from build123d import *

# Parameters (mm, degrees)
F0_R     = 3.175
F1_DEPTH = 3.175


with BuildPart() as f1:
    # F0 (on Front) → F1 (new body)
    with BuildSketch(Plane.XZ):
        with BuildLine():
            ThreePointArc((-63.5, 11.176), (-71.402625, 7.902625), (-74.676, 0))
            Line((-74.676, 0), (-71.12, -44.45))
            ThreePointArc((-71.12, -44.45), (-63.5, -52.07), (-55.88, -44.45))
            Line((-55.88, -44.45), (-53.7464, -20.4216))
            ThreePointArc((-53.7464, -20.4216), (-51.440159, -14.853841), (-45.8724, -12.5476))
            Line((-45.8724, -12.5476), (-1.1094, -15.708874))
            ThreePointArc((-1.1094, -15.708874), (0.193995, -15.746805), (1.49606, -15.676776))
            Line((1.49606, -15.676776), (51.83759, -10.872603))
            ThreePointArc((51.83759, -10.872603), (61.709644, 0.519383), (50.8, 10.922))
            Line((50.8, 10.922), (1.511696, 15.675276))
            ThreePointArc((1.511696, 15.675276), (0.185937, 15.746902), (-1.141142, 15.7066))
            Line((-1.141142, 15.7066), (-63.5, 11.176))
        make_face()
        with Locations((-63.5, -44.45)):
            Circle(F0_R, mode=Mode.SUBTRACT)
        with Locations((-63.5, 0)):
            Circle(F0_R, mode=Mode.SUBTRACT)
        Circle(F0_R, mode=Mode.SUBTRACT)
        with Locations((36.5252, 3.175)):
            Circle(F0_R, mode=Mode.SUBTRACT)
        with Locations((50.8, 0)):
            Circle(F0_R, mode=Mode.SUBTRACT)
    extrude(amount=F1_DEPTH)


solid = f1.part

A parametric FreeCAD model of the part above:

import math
import FreeCAD as App
import Part
import Sketcher

V = App.Vector
Q = App.Units.Quantity

doc = App.newDocument("Part")
params = doc.addObject("Spreadsheet::Sheet", "Params")
for row, (alias, value) in enumerate([
    ("sketch1_radius", "0.3 in"),
    ("sketch1_diameter", "0.25 in"),
    ("sketch1_radius2", "0.4400001 in"),
    ("sketch1_radius3", "0.31 in"),
    ("sketch1_radius4", "0.43 in"),
    ("pad1_length", "0.125 in"),
], start=1):
    params.set(f"A{row}", alias)
    params.set(f"B{row}", "=" + value)
    params.setAlias(f"B{row}", alias)

body = doc.addObject("PartDesign::Body", "Body")

# Sketch on XZ plane
sketch1 = body.newObject("Sketcher::SketchObject", "Sketch")
sketch1.AttachmentSupport = (doc.getObject("XZ_Plane"), [""])
sketch1.MapMode = "FlatFace"
sketch1.addGeometry([
    Part.ArcOfCircle(Part.Circle(V(-63.5, 0, 0), V(0, 0, 1), 11.2), math.radians(90), math.radians(180)),  # 0
    Part.LineSegment(V(-74.7, 0, 0), V(-71.1, -44.5, 0)),  # 1
    Part.ArcOfCircle(Part.Circle(V(-63.5, -44.5, 0), V(0, 0, 1), 7.6), math.radians(180), math.radians(360)),  # 2
    Part.LineSegment(V(-55.9, -44.5, 0), V(-53.7, -20.4, 0)),  # 3
    Part.ArcOfCircle(Part.Circle(V(-45.9, -20.4, 0), V(0, 0, 1), 7.9), math.radians(90), math.radians(180)),  # 4
    Part.LineSegment(V(-45.9, -12.5, 0), V(-1.1, -15.7, 0)),  # 5
    Part.ArcOfCircle(Part.Circle(V(0, 0, 0), V(0, 0, 1), 15.7), math.radians(-94.04), math.radians(-84.55)),  # 6
    Part.LineSegment(V(1.5, -15.7, 0), V(51.8, -10.9, 0)),  # 7
    Part.ArcOfCircle(Part.Circle(V(50.8, 0, 0), V(0, 0, 1), 10.9), math.radians(-85), math.radians(90)),  # 8
    Part.LineSegment(V(50.8, 10.9, 0), V(1.5, 15.7, 0)),  # 9
    Part.ArcOfCircle(Part.Circle(V(0, 0, 0), V(0, 0, 1), 15.7), math.radians(84.49), math.radians(94.16)),  # 10
    Part.LineSegment(V(-1.1, 15.7, 0), V(-63.5, 11.2, 0)),  # 11
    Part.Circle(V(-63.5, -44.5, 0), V(0, 0, 1), 3.2),  # 12
    Part.Circle(V(-63.5, 0, 0), V(0, 0, 1), 3.2),  # 13
    Part.Circle(V(0, 0, 0), V(0, 0, 1), 3.2),  # 14
    Part.Circle(V(36.5, 3.2, 0), V(0, 0, 1), 3.2),  # 15
    Part.Circle(V(50.8, 0, 0), V(0, 0, 1), 3.2),  # 16
], False)
sketch1.addConstraint([
    Sketcher.Constraint("Coincident", 0, 2, 1, 1),
    Sketcher.Constraint("Coincident", 1, 2, 2, 1),
    Sketcher.Constraint("Coincident", 2, 2, 3, 1),
    Sketcher.Constraint("Coincident", 3, 2, 4, 2),
    Sketcher.Constraint("Coincident", 4, 1, 5, 1),
    Sketcher.Constraint("Tangent", 5, 2, 6, 1),
    Sketcher.Constraint("Tangent", 6, 2, 7, 1),
    Sketcher.Constraint("Tangent", 7, 2, 8, 1),
    Sketcher.Constraint("Coincident", 8, 2, 9, 1),
    Sketcher.Constraint("Tangent", 9, 2, 10, 1),
    Sketcher.Constraint("Tangent", 10, 2, 11, 1),
    Sketcher.Constraint("Coincident", 11, 2, 0, 1),
    Sketcher.Constraint("Coincident", 10, 3, -1, 1),
    Sketcher.Constraint("Coincident", 14, 3, -1, 1),
    Sketcher.Constraint("Coincident", 12, 3, 2, 3),
    Sketcher.Constraint("Coincident", 13, 3, 0, 3),
    Sketcher.Constraint("Coincident", 16, 3, 8, 3),
    Sketcher.Constraint("Equal", 12, 13),
    Sketcher.Constraint("Equal", 13, 14),
    Sketcher.Constraint("Equal", 14, 15),
    Sketcher.Constraint("Equal", 15, 16),
    Sketcher.Constraint("PointOnObject", 0, 3, -1),
    Sketcher.Constraint("PointOnObject", 8, 3, -1),
    Sketcher.Constraint("PointOnObject", 0, 2, -1),
    Sketcher.Constraint("Horizontal", 12, 3, 1, 2),
    Sketcher.Constraint("Horizontal", 1, 2, 2, 2),
    Sketcher.Constraint("Horizontal", 4, 3, 3, 2),
    Sketcher.Constraint("Vertical", 0, 3, 2, 3),
    Sketcher.Constraint("Vertical", 6, 3, 10, 3),
    Sketcher.Constraint("Vertical", 16, 3, 8, 2),
    Sketcher.Constraint("Vertical", 13, 3, 11, 2),
    Sketcher.Constraint("Radius", 2, Q("0.3 in")),
    Sketcher.Constraint("Diameter", 12, Q("0.25 in")),
    Sketcher.Constraint("Radius", 0, Q("0.4400001 in")),
    Sketcher.Constraint("Radius", 4, Q("0.31 in")),
    Sketcher.Constraint("Radius", 8, Q("0.43 in")),
    Sketcher.Constraint("Radius", 10, Q("0.6200001 in")),
    Sketcher.Constraint("DistanceX", -1, 1, 8, 3, Q("2 in")),
    Sketcher.Constraint("DistanceX", 0, 3, -1, 1, Q("2.4999999 in")),
    Sketcher.Constraint("DistanceY", 2, 3, -1, 1, Q("1.75 in")),
    Sketcher.Constraint("DistanceX", 3, 2, 4, 1, Q("0.31 in")),
    Sketcher.Constraint("DistanceX", 4, 3, -1, 1, Q("1.806 in")),
    Sketcher.Constraint("DistanceY", 4, 3, -1, 1, Q("0.804 in")),
    Sketcher.Constraint("DistanceX", -1, 1, 15, 3, Q("1.438 in")),
    Sketcher.Constraint("DistanceY", -1, 1, 15, 3, Q("0.125 in")),
    Sketcher.Constraint("DistanceX", -1, 1, 6, 2, Q("0.0589 in")),
    Sketcher.Constraint("Radius", 6, Q("15.747946 mm")),
])
sketch1.setExpression("Constraints[31]", "Params.sketch1_radius")
sketch1.setExpression("Constraints[32]", "Params.sketch1_diameter")
sketch1.setExpression("Constraints[33]", "Params.sketch1_radius2")
sketch1.setExpression("Constraints[34]", "Params.sketch1_radius3")
sketch1.setExpression("Constraints[35]", "Params.sketch1_radius4")
pad1 = body.newObject("PartDesign::Pad", "Pad")
pad1.Profile = sketch1
pad1.setExpression("Length", "Params.pad1_length")

doc.recompute()
